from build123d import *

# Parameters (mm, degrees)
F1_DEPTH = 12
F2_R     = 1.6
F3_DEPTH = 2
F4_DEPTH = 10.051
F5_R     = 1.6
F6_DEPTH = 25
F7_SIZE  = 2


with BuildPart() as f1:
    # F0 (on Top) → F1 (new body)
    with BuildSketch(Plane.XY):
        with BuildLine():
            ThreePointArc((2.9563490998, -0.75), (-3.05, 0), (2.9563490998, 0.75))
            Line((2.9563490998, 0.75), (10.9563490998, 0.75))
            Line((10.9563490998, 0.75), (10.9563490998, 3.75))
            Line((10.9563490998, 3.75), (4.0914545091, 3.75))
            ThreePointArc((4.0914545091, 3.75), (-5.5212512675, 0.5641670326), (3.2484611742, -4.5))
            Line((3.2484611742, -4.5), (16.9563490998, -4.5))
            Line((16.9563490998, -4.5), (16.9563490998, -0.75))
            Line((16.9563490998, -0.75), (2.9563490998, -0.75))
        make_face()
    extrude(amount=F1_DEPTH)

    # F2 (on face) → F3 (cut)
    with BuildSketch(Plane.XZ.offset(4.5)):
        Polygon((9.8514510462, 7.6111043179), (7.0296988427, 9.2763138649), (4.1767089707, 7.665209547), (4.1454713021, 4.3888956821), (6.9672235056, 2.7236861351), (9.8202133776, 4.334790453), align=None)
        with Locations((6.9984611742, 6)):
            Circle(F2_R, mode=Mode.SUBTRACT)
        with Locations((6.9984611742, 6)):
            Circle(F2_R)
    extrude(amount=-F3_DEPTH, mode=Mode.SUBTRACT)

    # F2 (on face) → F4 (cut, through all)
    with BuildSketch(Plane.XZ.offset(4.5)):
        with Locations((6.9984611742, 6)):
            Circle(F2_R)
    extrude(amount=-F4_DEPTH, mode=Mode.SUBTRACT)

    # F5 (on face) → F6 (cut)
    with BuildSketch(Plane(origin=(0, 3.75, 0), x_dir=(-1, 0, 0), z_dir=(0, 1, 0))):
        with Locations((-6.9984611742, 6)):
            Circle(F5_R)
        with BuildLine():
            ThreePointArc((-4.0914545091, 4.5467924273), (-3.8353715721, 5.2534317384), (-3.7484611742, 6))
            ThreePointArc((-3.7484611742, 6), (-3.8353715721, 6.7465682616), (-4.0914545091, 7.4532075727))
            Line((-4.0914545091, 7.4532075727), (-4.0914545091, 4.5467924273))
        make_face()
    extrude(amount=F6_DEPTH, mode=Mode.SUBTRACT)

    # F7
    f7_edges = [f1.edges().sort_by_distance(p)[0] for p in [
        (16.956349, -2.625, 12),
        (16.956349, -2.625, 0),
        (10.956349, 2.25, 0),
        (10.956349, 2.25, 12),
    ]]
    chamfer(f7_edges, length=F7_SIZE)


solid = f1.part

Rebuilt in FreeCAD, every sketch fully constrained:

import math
import FreeCAD as App
import Part
import Sketcher
from FreeCAD import Vector


def edges_at(feature, points):
    """Names of the edges that pass closest to the given points."""
    edges = feature.Shape.Edges
    near = lambda p: min(range(len(edges)), key=lambda i: edges[i].distToShape(Part.Vertex(*p))[0])
    return sorted({f"Edge{near(p) + 1}" for p in points})

doc = App.newDocument("Part")
body = doc.addObject("PartDesign::Body", "Body")

sketch1 = body.newObject("Sketcher::SketchObject", "Sketch")
sketch1.AttachmentSupport = (doc.getObject("XY_Plane"), [""])
sketch1.MapMode = "FlatFace"
sketch1.addGeometry([
    Part.ArcOfCircle(Part.Circle(Vector(0, 0, 0), Vector(0, 0, 1), 3.05), math.radians(14.235124), math.radians(345.764876)),
    Part.LineSegment(Vector(2.956349, 0.75, 0), Vector(10.956349, 0.75, 0)),
    Part.LineSegment(Vector(10.956349, 0.75, 0), Vector(10.956349, 3.75, 0)),
    Part.LineSegment(Vector(10.956349, 3.75, 0), Vector(4.091455, 3.75, 0)),
    Part.ArcOfCircle(Part.Circle(Vector(0, 0, 0), Vector(0, 0, 1), 5.55), math.radians(42.506642), math.radians(305.824774)),
    Part.LineSegment(Vector(3.248461, -4.5, 0), Vector(16.956349, -4.5, 0)),
    Part.LineSegment(Vector(16.956349, -4.5, 0), Vector(16.956349, -0.75, 0)),
    Part.LineSegment(Vector(16.956349, -0.75, 0), Vector(2.956349, -0.75, 0)),
], False)
sketch1.addConstraint([
    Sketcher.Constraint("Coincident", 0, 1, 1, 1),
    Sketcher.Constraint("Coincident", 1, 2, 2, 1),
    Sketcher.Constraint("Coincident", 2, 2, 3, 1),
    Sketcher.Constraint("Coincident", 3, 2, 4, 1),
    Sketcher.Constraint("Coincident", 4, 2, 5, 1),
    Sketcher.Constraint("Coincident", 5, 2, 6, 1),
    Sketcher.Constraint("Coincident", 6, 2, 7, 1),
    Sketcher.Constraint("Coincident", 7, 2, 0, 2),
    Sketcher.Constraint("Horizontal", 1),
    Sketcher.Constraint("Vertical", 2),
    Sketcher.Constraint("Horizontal", 3),
    Sketcher.Constraint("Horizontal", 5),
    Sketcher.Constraint("Vertical", 6),
    Sketcher.Constraint("Horizontal", 7),
    Sketcher.Constraint("Coincident", 0, 3, -1, 1),
    Sketcher.Constraint("Coincident", 4, 3, -1, 1),
    Sketcher.Constraint("Vertical", 0, 1, 7, 2),
    Sketcher.Constraint("DistanceX", 1, 1, 1, 2, 8.0),
    Sketcher.Constraint("DistanceX", 7, 2, 7, 1, 14.0),
    Sketcher.Constraint("DistanceY", 2, 1, 2, 2, 3.0),
    Sketcher.Constraint("Radius", 0, 3.05),
    Sketcher.Constraint("Radius", 4, 5.55),
    Sketcher.Constraint("DistanceY", 6, 1, 6, 2, 3.75),
    Sketcher.Constraint("DistanceY", 4, 2, -1, 1, 4.5),
])
pad1 = body.newObject("PartDesign::Pad", "Pad")
pad1.Profile = sketch1
pad1.Length = 12

sketch2 = body.newObject("Sketcher::SketchObject", "Sketch001")
sketch2.AttachmentSupport = (doc.getObject("XZ_Plane"), [""])
sketch2.MapMode = "FlatFace"
sketch2.AttachmentOffset = App.Placement(Vector(0, 0, 4.5), App.Rotation())
sketch2.addGeometry([
    Part.LineSegment(Vector(9.851451, 7.611104, 0), Vector(7.029699, 9.276314, 0)),
    Part.LineSegment(Vector(7.029699, 9.276314, 0), Vector(4.176709, 7.66521, 0)),
    Part.LineSegment(Vector(4.176709, 7.66521, 0), Vector(4.145471, 4.388896, 0)),
    Part.LineSegment(Vector(4.145471, 4.388896, 0), Vector(6.967224, 2.723686, 0)),
    Part.LineSegment(Vector(6.967224, 2.723686, 0), Vector(9.820213, 4.33479, 0)),
    Part.LineSegment(Vector(9.820213, 4.33479, 0), Vector(9.851451, 7.611104, 0)),
], False)
sketch2.addConstraint([
    Sketcher.Constraint("Coincident", 0, 2, 1, 1),
    Sketcher.Constraint("Coincident", 1, 2, 2, 1),
    Sketcher.Constraint("Coincident", 2, 2, 3, 1),
    Sketcher.Constraint("Coincident", 3, 2, 4, 1),
    Sketcher.Constraint("Coincident", 4, 2, 5, 1),
    Sketcher.Constraint("Coincident", 5, 2, 0, 1),
    Sketcher.Constraint("Parallel", 0, 3),
    Sketcher.Constraint("Parallel", 1, 4),
    Sketcher.Constraint("Parallel", 2, 5),
    Sketcher.Constraint("Equal", 0, 1),
    Sketcher.Constraint("Equal", 1, 2),
    Sketcher.Constraint("Equal", 2, 3),
    Sketcher.Constraint("DistanceX", -1, 1, 0, 2, 7.029699),
    Sketcher.Constraint("DistanceX", -1, 1, 1, 2, 4.176709),
    Sketcher.Constraint("DistanceY", -1, 1, 1, 2, 7.66521),
    Sketcher.Constraint("DistanceX", -1, 1, 2, 2, 4.145471),
    Sketcher.Constraint("DistanceY", -1, 1, 4, 2, 4.33479),
    Sketcher.Constraint("DistanceX", -1, 1, 5, 2, 9.851451),
])
pocket1 = body.newObject("PartDesign::Pocket", "Pocket")
pocket1.Profile = sketch2
pocket1.Length = 2

sketch3 = body.newObject("Sketcher::SketchObject", "Sketch002")
sketch3.AttachmentSupport = (doc.getObject("XZ_Plane"), [""])
sketch3.MapMode = "FlatFace"
sketch3.AttachmentOffset = App.Placement(Vector(0, 0, 4.5), App.Rotation())
sketch3.addGeometry(Part.Circle(Vector(6.998461, 6, 0), Vector(0, 0, 1), 1.6), False)
sketch3.addConstraint([
    Sketcher.Constraint("Diameter", 0, 3.2),
    Sketcher.Constraint("DistanceY", -1, 1, 0, 3, 6.0),
    Sketcher.Constraint("DistanceX", -1, 1, 0, 3, 6.998461),
])
pocket2 = body.newObject("PartDesign::Pocket", "Pocket001")
pocket2.Profile = sketch3
pocket2.Type = "ThroughAll"

sketch4 = body.newObject("Sketcher::SketchObject", "Sketch003")
sketch4.AttachmentSupport = (doc.getObject("XZ_Plane"), [""])
sketch4.MapMode = "FlatFace"
sketch4.AttachmentOffset = App.Placement(Vector(0, 0, -3.75), App.Rotation())
sketch4.addGeometry([
    Part.Circle(Vector(6.998461, 6, 0), Vector(0, 0, 1), 1.6),
    Part.ArcOfCircle(Part.Circle(Vector(6.998461, 6, 0), Vector(0, 0, 1), 3.25), math.radians(180), math.radians(206.560388)),
    Part.ArcOfCircle(Part.Circle(Vector(6.998461, 6, 0), Vector(0, 0, 1), 3.25), math.radians(153.439612), math.radians(180)),
    Part.LineSegment(Vector(4.091455, 7.453208, 0), Vector(4.091455, 4.546792, 0)),
], False)
sketch4.addConstraint([
    Sketcher.Constraint("Tangent", 1, 1, 2, 2),
    Sketcher.Constraint("Coincident", 2, 1, 3, 1),
    Sketcher.Constraint("Coincident", 3, 2, 1, 2),
    Sketcher.Constraint("Vertical", 3),
    Sketcher.Constraint("Coincident", 1, 3, 0, 3),
    Sketcher.Constraint("Equal", 1, 2),
    Sketcher.Constraint("Horizontal", 2, 3, 1, 1),
    Sketcher.Constraint("Diameter", 0, 3.2),
    Sketcher.Constraint("Radius", 1, 3.25),
    Sketcher.Constraint("DistanceY", -1, 1, 0, 3, 6.0),
    Sketcher.Constraint("DistanceY", 3, 2, 3, 1, 2.906415),
    Sketcher.Constraint("DistanceX", -1, 1, 0, 3, 6.998461),
])
pocket3 = body.newObject("PartDesign::Pocket", "Pocket002")
pocket3.Profile = sketch4
pocket3.Length = 25
doc.recompute()

chamfer = body.newObject("PartDesign::Chamfer", "Chamfer")
chamfer.Base = (pocket3, edges_at(pocket3, [
    (16.956, -2.625, 12),
    (16.956, -2.625, 0),
    (10.956, 2.25, 0),
    (10.956, 2.25, 12),
]))
chamfer.Size = 2

doc.recompute()
